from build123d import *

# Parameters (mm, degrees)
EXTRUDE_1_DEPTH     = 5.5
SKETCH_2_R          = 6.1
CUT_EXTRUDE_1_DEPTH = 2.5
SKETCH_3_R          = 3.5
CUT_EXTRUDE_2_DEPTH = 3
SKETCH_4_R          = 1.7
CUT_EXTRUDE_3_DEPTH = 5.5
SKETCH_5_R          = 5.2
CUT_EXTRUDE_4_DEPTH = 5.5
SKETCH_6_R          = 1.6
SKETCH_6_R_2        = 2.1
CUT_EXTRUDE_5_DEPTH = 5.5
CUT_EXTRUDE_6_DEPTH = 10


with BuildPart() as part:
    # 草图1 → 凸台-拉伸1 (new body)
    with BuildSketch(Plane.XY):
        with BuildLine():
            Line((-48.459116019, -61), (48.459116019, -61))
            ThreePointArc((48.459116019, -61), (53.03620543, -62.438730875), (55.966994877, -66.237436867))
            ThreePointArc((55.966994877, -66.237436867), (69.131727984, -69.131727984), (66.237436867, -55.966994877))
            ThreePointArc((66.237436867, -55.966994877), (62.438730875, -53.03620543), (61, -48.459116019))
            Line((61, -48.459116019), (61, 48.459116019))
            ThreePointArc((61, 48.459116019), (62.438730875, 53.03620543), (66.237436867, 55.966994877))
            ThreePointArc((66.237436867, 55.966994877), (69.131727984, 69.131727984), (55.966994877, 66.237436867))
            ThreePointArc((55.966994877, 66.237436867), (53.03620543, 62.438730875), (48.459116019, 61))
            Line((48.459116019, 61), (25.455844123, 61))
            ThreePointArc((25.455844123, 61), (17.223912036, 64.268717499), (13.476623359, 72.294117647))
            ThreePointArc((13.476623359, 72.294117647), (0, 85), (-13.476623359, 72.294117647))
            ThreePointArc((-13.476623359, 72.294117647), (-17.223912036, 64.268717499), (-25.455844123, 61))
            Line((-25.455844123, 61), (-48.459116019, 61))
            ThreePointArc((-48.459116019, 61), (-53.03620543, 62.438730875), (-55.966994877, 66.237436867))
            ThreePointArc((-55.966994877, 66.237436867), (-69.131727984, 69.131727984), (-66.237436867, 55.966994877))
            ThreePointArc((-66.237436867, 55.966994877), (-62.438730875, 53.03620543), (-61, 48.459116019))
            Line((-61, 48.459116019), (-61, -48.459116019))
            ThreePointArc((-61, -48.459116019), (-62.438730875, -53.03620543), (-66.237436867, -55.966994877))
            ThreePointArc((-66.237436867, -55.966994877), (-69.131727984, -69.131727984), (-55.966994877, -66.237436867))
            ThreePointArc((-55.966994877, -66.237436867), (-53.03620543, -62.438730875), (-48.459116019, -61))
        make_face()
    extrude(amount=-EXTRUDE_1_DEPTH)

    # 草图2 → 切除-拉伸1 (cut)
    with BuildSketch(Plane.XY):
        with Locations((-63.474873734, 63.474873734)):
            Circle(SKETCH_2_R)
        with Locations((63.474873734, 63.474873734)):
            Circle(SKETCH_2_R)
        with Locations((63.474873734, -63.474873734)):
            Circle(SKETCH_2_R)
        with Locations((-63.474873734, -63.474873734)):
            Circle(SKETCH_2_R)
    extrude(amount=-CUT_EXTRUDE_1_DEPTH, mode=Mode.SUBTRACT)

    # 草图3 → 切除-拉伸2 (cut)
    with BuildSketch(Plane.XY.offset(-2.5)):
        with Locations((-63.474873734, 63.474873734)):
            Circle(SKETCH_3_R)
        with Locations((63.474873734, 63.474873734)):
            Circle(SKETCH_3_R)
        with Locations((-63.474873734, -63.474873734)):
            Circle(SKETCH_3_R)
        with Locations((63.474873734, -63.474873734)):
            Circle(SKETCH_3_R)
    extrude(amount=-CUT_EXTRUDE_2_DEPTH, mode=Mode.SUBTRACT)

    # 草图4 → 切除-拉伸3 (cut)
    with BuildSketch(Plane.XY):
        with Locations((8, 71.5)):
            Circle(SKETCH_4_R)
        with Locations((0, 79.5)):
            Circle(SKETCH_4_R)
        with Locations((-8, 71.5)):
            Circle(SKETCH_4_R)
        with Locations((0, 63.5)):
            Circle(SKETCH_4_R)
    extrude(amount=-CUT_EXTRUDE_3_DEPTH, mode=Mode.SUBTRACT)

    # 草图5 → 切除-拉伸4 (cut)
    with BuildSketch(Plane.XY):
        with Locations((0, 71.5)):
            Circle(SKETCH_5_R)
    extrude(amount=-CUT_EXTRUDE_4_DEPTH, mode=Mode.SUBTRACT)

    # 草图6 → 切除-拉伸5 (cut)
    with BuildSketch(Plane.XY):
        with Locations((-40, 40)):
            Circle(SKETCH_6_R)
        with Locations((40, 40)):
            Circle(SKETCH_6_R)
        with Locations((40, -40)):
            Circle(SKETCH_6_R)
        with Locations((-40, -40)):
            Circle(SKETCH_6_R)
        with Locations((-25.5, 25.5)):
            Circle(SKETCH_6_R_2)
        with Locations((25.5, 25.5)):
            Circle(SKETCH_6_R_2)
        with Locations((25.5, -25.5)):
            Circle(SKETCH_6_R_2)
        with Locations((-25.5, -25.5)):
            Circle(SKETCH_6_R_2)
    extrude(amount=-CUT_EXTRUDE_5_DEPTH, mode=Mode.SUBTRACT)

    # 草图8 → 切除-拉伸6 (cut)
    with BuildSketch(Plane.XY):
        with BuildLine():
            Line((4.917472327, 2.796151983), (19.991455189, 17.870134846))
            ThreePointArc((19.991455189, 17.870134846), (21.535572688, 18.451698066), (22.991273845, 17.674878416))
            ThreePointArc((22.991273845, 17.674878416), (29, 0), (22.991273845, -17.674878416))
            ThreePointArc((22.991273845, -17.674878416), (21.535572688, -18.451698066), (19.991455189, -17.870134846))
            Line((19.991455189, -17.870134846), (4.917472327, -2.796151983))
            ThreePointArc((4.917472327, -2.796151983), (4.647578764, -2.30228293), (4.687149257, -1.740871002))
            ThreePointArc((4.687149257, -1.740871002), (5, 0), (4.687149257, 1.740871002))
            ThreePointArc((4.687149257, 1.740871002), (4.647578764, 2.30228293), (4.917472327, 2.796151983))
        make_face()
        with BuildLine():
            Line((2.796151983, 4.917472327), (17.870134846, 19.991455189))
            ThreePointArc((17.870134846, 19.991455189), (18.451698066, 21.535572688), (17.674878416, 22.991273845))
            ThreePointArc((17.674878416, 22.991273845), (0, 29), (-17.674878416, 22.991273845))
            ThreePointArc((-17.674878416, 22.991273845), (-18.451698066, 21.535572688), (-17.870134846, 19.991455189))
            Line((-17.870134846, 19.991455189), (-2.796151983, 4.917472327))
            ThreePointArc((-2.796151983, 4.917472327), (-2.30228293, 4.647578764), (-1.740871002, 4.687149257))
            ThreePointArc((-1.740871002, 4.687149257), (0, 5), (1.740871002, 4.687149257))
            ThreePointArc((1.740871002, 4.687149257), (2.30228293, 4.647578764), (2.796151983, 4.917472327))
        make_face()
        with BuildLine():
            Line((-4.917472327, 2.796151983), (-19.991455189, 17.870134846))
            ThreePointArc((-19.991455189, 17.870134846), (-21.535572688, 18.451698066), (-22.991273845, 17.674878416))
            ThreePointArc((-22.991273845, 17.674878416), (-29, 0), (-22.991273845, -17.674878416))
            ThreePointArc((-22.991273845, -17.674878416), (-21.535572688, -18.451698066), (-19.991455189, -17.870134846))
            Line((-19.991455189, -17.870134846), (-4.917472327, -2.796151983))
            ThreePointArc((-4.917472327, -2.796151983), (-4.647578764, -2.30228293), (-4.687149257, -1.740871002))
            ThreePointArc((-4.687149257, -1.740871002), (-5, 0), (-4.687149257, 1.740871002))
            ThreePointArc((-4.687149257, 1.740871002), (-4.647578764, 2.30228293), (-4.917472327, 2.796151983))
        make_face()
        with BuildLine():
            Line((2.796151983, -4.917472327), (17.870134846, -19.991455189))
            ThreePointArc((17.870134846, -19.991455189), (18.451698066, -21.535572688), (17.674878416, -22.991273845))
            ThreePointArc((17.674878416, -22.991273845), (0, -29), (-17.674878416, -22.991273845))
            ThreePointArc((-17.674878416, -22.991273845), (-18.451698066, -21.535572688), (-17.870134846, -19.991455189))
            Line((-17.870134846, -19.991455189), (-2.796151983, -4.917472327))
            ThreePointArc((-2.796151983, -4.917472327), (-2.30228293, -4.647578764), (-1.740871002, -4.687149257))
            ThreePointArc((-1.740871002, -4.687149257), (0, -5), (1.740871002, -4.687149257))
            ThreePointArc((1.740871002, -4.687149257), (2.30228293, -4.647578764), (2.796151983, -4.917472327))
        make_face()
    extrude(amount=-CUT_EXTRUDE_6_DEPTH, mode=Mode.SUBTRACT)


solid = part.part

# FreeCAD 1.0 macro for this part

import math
import FreeCAD as App
import Part
import Sketcher
from FreeCAD import Vector
Q = App.Units.Quantity

doc = App.newDocument("Part")
body = doc.addObject("PartDesign::Body", "Body")

# Sketch on XY plane
sketch1 = body.newObject("Sketcher::SketchObject", "Sketch")
sketch1.AttachmentSupport = (doc.getObject("XY_Plane"), [""])
sketch1.MapMode = "FlatFace"
sketch1.addGeometry(Part.LineSegment(Vector(-48, -61, 0), Vector(48, -61, 0)), False)
sketch1.addGeometry(Part.ArcOfCircle(Part.Circle(Vector(48, -69, 0), Vector(0, 0, 1), 8), math.radians(20), math.radians(90)), False)
sketch1.addGeometry(Part.ArcOfCircle(Part.Circle(Vector(63, -63, 0), Vector(0, 0, 1), 8), math.radians(-160), math.radians(70)), False)
sketch1.addGeometry(Part.ArcOfCircle(Part.Circle(Vector(69, -48, 0), Vector(0, 0, 1), 8), math.radians(180), math.radians(250)), False)
sketch1.addGeometry(Part.LineSegment(Vector(61, -48, 0), Vector(61, 48, 0)), False)
sketch1.addGeometry(Part.ArcOfCircle(Part.Circle(Vector(69, 48, 0), Vector(0, 0, 1), 8), math.radians(110), math.radians(180)), False)
sketch1.addGeometry(Part.ArcOfCircle(Part.Circle(Vector(63, 63, 0), Vector(0, 0, 1), 8), math.radians(-70), math.radians(160)), False)
sketch1.addGeometry(Part.ArcOfCircle(Part.Circle(Vector(48, 69, 0), Vector(0, 0, 1), 8), math.radians(-90), math.radians(-20)), False)
sketch1.addGeometry(Part.LineSegment(Vector(48, 61, 0), Vector(25, 61, 0)), False)
sketch1.addGeometry(Part.ArcOfCircle(Part.Circle(Vector(25, 73, 0), Vector(0, 0, 1), 12), math.radians(-177), math.radians(-90)), False)
sketch1.addGeometry(Part.ArcOfCircle(Part.Circle(Vector(0, 72, 0), Vector(0, 0, 1), 14), math.radians(3), math.radians(177)), False)
sketch1.addGeometry(Part.ArcOfCircle(Part.Circle(Vector(-25, 73, 0), Vector(0, 0, 1), 12), math.radians(-90), math.radians(-3)), False)
sketch1.addGeometry(Part.LineSegment(Vector(-25, 61, 0), Vector(-48, 61, 0)), False)
sketch1.addGeometry(Part.ArcOfCircle(Part.Circle(Vector(-48, 69, 0), Vector(0, 0, 1), 8), math.radians(-160), math.radians(-90)), False)
sketch1.addGeometry(Part.ArcOfCircle(Part.Circle(Vector(-63, 63, 0), Vector(0, 0, 1), 8), math.radians(20), math.radians(250)), False)
sketch1.addGeometry(Part.ArcOfCircle(Part.Circle(Vector(-69, 48, 0), Vector(0, 0, 1), 8), math.radians(0), math.radians(70)), False)
sketch1.addGeometry(Part.LineSegment(Vector(-61, 48, 0), Vector(-61, -48, 0)), False)
sketch1.addGeometry(Part.ArcOfCircle(Part.Circle(Vector(-69, -48, 0), Vector(0, 0, 1), 8), math.radians(-70), math.radians(0)), False)
sketch1.addGeometry(Part.ArcOfCircle(Part.Circle(Vector(-63, -63, 0), Vector(0, 0, 1), 8), math.radians(110), math.radians(340)), False)
sketch1.addGeometry(Part.ArcOfCircle(Part.Circle(Vector(-48, -69, 0), Vector(0, 0, 1), 8), math.radians(90), math.radians(160)), False)
sketch1.addConstraint(Sketcher.Constraint("Tangent", 0, 2, 1, 2))
sketch1.addConstraint(Sketcher.Constraint("Tangent", 1, 1, 2, 1))
sketch1.addConstraint(Sketcher.Constraint("Tangent", 2, 2, 3, 2))
sketch1.addConstraint(Sketcher.Constraint("Tangent", 3, 1, 4, 1))
sketch1.addConstraint(Sketcher.Constraint("Tangent", 4, 2, 5, 2))
sketch1.addConstraint(Sketcher.Constraint("Tangent", 5, 1, 6, 1))
sketch1.addConstraint(Sketcher.Constraint("Tangent", 6, 2, 7, 2))
sketch1.addConstraint(Sketcher.Constraint("Tangent", 7, 1, 8, 1))
sketch1.addConstraint(Sketcher.Constraint("Tangent", 8, 2, 9, 2))
sketch1.addConstraint(Sketcher.Constraint("Tangent", 9, 1, 10, 1))
sketch1.addConstraint(Sketcher.Constraint("Tangent", 10, 2, 11, 2))
sketch1.addConstraint(Sketcher.Constraint("Tangent", 11, 1, 12, 1))
sketch1.addConstraint(Sketcher.Constraint("Tangent", 12, 2, 13, 2))
sketch1.addConstraint(Sketcher.Constraint("Tangent", 13, 1, 14, 1))
sketch1.addConstraint(Sketcher.Constraint("Tangent", 14, 2, 15, 2))
sketch1.addConstraint(Sketcher.Constraint("Tangent", 15, 1, 16, 1))
sketch1.addConstraint(Sketcher.Constraint("Tangent", 16, 2, 17, 2))
sketch1.addConstraint(Sketcher.Constraint("Tangent", 17, 1, 18, 1))
sketch1.addConstraint(Sketcher.Constraint("Tangent", 18, 2, 19, 2))
sketch1.addConstraint(Sketcher.Constraint("Tangent", 19, 1, 0, 1))
sketch1.addConstraint(Sketcher.Constraint("Horizontal", 0))
sketch1.addConstraint(Sketcher.Constraint("Vertical", 4))
sketch1.addConstraint(Sketcher.Constraint("Horizontal", 8))
sketch1.addConstraint(Sketcher.Constraint("Horizontal", 12))
sketch1.addConstraint(Sketcher.Constraint("Vertical", 16))
sketch1.addConstraint(Sketcher.Constraint("Equal", 1, 2))
sketch1.addConstraint(Sketcher.Constraint("Equal", 2, 3))
sketch1.addConstraint(Sketcher.Constraint("Equal", 3, 5))
sketch1.addConstraint(Sketcher.Constraint("Equal", 5, 6))
sketch1.addConstraint(Sketcher.Constraint("Equal", 6, 7))
sketch1.addConstraint(Sketcher.Constraint("Equal", 9, 11))
sketch1.addConstraint(Sketcher.Constraint("Equal", 7, 13))
sketch1.addConstraint(Sketcher.Constraint("Equal", 13, 14))
sketch1.addConstraint(Sketcher.Constraint("Equal", 14, 15))
sketch1.addConstraint(Sketcher.Constraint("Equal", 15, 17))
sketch1.addConstraint(Sketcher.Constraint("Equal", 17, 18))
sketch1.addConstraint(Sketcher.Constraint("Equal", 18, 19))
sketch1.addConstraint(Sketcher.Constraint("Symmetric", 1, 3, 13, 3, -1, 1))
sketch1.addConstraint(Sketcher.Constraint("Symmetric", 3, 3, 15, 3, -1, 1))
sketch1.addConstraint(Sketcher.Constraint("Symmetric", 6, 3, 18, 3, -1, 1))
sketch1.addConstraint(Sketcher.Constraint("Symmetric", 9, 3, 11, 3, -2))
sketch1.addConstraint(Sketcher.Constraint("Symmetric", 6, 3, 14, 3, -2))
sketch1.addConstraint(Sketcher.Constraint("Equal", 0, 4))
sketch1.addConstraint(Sketcher.Constraint("Radius", 1, Q("8 mm")))
sketch1.addConstraint(Sketcher.Constraint("Radius", 9, Q("12 mm")))
sketch1.addConstraint(Sketcher.Constraint("Radius", 10, Q("13.5 mm")))
sketch1.addConstraint(Sketcher.Constraint("DistanceY", 1, 3, -1, 1, Q("69 mm")))
sketch1.addConstraint(Sketcher.Constraint("DistanceX", -1, 1, 3, 3, Q("69 mm")))
sketch1.addConstraint(Sketcher.Constraint("DistanceY", -1, 1, 10, 3, Q("71.5 mm")))
sketch1.addConstraint(Sketcher.Constraint("DistanceX", 8, 2, 8, 1, Q("23.003272 mm")))
pad1 = body.newObject("PartDesign::Pad", "Pad")
pad1.Profile = sketch1
pad1.Length = 5.5
pad1.Reversed = True

# Sketch on XY plane
sketch2 = body.newObject("Sketcher::SketchObject", "Sketch001")
sketch2.AttachmentSupport = (doc.getObject("XY_Plane"), [""])
sketch2.MapMode = "FlatFace"
sketch2.addGeometry(Part.Circle(Vector(-63, 63, 0), Vector(0, 0, 1), 6), False)
sketch2.addGeometry(Part.Circle(Vector(63, 63, 0), Vector(0, 0, 1), 6), False)
sketch2.addGeometry(Part.Circle(Vector(63, -63, 0), Vector(0, 0, 1), 6), False)
sketch2.addGeometry(Part.Circle(Vector(-63, -63, 0), Vector(0, 0, 1), 6), False)
sketch2.addConstraint(Sketcher.Constraint("Equal", 0, 1))
sketch2.addConstraint(Sketcher.Constraint("Equal", 1, 2))
sketch2.addConstraint(Sketcher.Constraint("Equal", 2, 3))
sketch2.addConstraint(Sketcher.Constraint("Symmetric", 0, 3, 2, 3, -1, 1))
sketch2.addConstraint(Sketcher.Constraint("Symmetric", 1, 3, 3, 3, -1, 1))
sketch2.addConstraint(Sketcher.Constraint("Symmetric", 0, 3, 1, 3, -2))
sketch2.addConstraint(Sketcher.Constraint("Diameter", 0, Q("12.2 mm")))
sketch2.addConstraint(Sketcher.Constraint("DistanceX", 0, 3, -1, 1, Q("63.474874 mm")))
sketch2.addConstraint(Sketcher.Constraint("DistanceY", -1, 1, 0, 3, Q("63.474874 mm")))
pocket1 = body.newObject("PartDesign::Pocket", "Pocket")
pocket1.Profile = sketch2
pocket1.Length = 2.5

# Sketch on XY plane
sketch3 = body.newObject("Sketcher::SketchObject", "Sketch002")
sketch3.AttachmentSupport = (doc.getObject("XY_Plane"), [""])
sketch3.MapMode = "FlatFace"
sketch3.AttachmentOffset = App.Placement(Vector(0, 0, -2.5), App.Rotation())
sketch3.addGeometry(Part.Circle(Vector(-63.5, 63.5, 0), Vector(0, 0, 1), 3.5), False)
sketch3.addGeometry(Part.Circle(Vector(63.5, 63.5, 0), Vector(0, 0, 1), 3.5), False)
sketch3.addGeometry(Part.Circle(Vector(-63.5, -63.5, 0), Vector(0, 0, 1), 3.5), False)
sketch3.addGeometry(Part.Circle(Vector(63.5, -63.5, 0), Vector(0, 0, 1), 3.5), False)
sketch3.addConstraint(Sketcher.Constraint("Equal", 0, 1))
sketch3.addConstraint(Sketcher.Constraint("Equal", 1, 2))
sketch3.addConstraint(Sketcher.Constraint("Equal", 2, 3))
sketch3.addConstraint(Sketcher.Constraint("Symmetric", 1, 3, 2, 3, -1, 1))
sketch3.addConstraint(Sketcher.Constraint("Symmetric", 0, 3, 3, 3, -1, 1))
sketch3.addConstraint(Sketcher.Constraint("Symmetric", 0, 3, 1, 3, -2))
sketch3.addConstraint(Sketcher.Constraint("Diameter", 0, Q("7 mm")))
sketch3.addConstraint(Sketcher.Constraint("DistanceX", 0, 3, -1, 1, Q("63.474874 mm")))
sketch3.addConstraint(Sketcher.Constraint("DistanceY", -1, 1, 0, 3, Q("63.474874 mm")))
pocket2 = body.newObject("PartDesign::Pocket", "Pocket001")
pocket2.Profile = sketch3
pocket2.Length = 3

# Sketch on XY plane
sketch4 = body.newObject("Sketcher::SketchObject", "Sketch003")
sketch4.AttachmentSupport = (doc.getObject("XY_Plane"), [""])
sketch4.MapMode = "FlatFace"
sketch4.addGeometry(Part.Circle(Vector(8, 71.5, 0), Vector(0, 0, 1), 1.7), False)
sketch4.addGeometry(Part.Circle(Vector(0, 79.5, 0), Vector(0, 0, 1), 1.7), False)
sketch4.addGeometry(Part.Circle(Vector(-8, 71.5, 0), Vector(0, 0, 1), 1.7), False)
sketch4.addGeometry(Part.Circle(Vector(0, 63.5, 0), Vector(0, 0, 1), 1.7), False)
sketch4.addConstraint(Sketcher.Constraint("Equal", 0, 1))
sketch4.addConstraint(Sketcher.Constraint("Equal", 1, 2))
sketch4.addConstraint(Sketcher.Constraint("Equal", 2, 3))
sketch4.addConstraint(Sketcher.Constraint("Symmetric", 0, 3, 2, 3, -2))
sketch4.addConstraint(Sketcher.Constraint("PointOnObject", 1, 3, -2))
sketch4.addConstraint(Sketcher.Constraint("PointOnObject", 3, 3, -2))
sketch4.addConstraint(Sketcher.Constraint("Diameter", 0, Q("3.4 mm")))
sketch4.addConstraint(Sketcher.Constraint("DistanceX", -1, 1, 0, 3, Q("8 mm")))
sketch4.addConstraint(Sketcher.Constraint("DistanceY", 0, 3, 1, 3, Q("8 mm")))
sketch4.addConstraint(Sketcher.Constraint("DistanceY", 3, 3, 0, 3, Q("8 mm")))
sketch4.addConstraint(Sketcher.Constraint("DistanceY", -1, 1, 0, 3, Q("71.5 mm")))
pocket3 = body.newObject("PartDesign::Pocket", "Pocket002")
pocket3.Profile = sketch4
pocket3.Length = 5.5

# Sketch on XY plane
sketch5 = body.newObject("Sketcher::SketchObject", "Sketch004")
sketch5.AttachmentSupport = (doc.getObject("XY_Plane"), [""])
sketch5.MapMode = "FlatFace"
sketch5.addGeometry(Part.Circle(Vector(0, 72, 0), Vector(0, 0, 1), 5), False)
sketch5.addConstraint(Sketcher.Constraint("PointOnObject", 0, 3, -2))
sketch5.addConstraint(Sketcher.Constraint("Diameter", 0, Q("10.4 mm")))
sketch5.addConstraint(Sketcher.Constraint("DistanceY", -1, 1, 0, 3, Q("71.5 mm")))
pocket4 = body.newObject("PartDesign::Pocket", "Pocket003")
pocket4.Profile = sketch5
pocket4.Length = 5.5

# Sketch on XY plane
sketch6 = body.newObject("Sketcher::SketchObject", "Sketch005")
sketch6.AttachmentSupport = (doc.getObject("XY_Plane"), [""])
sketch6.MapMode = "FlatFace"
sketch6.addGeometry(Part.Circle(Vector(-40, 40, 0), Vector(0, 0, 1), 1.6), False)
sketch6.addGeometry(Part.Circle(Vector(40, 40, 0), Vector(0, 0, 1), 1.6), False)
sketch6.addGeometry(Part.Circle(Vector(40, -40, 0), Vector(0, 0, 1), 1.6), False)
sketch6.addGeometry(Part.Circle(Vector(-40, -40, 0), Vector(0, 0, 1), 1.6), False)
sketch6.addGeometry(Part.Circle(Vector(-25.5, 25.5, 0), Vector(0, 0, 1), 2.1), False)
sketch6.addGeometry(Part.Circle(Vector(25.5, 25.5, 0), Vector(0, 0, 1), 2.1), False)
sketch6.addGeometry(Part.Circle(Vector(25.5, -25.5, 0), Vector(0, 0, 1), 2.1), False)
sketch6.addGeometry(Part.Circle(Vector(-25.5, -25.5, 0), Vector(0, 0, 1), 2.1), False)
sketch6.addConstraint(Sketcher.Constraint("Equal", 0, 1))
sketch6.addConstraint(Sketcher.Constraint("Equal", 1, 2))
sketch6.addConstraint(Sketcher.Constraint("Equal", 2, 3))
sketch6.addConstraint(Sketcher.Constraint("Equal", 4, 5))
sketch6.addConstraint(Sketcher.Constraint("Equal", 5, 6))
sketch6.addConstraint(Sketcher.Constraint("Equal", 6, 7))
sketch6.addConstraint(Sketcher.Constraint("Symmetric", 0, 3, 2, 3, -1, 1))
sketch6.addConstraint(Sketcher.Constraint("Symmetric", 1, 3, 3, 3, -1, 1))
sketch6.addConstraint(Sketcher.Constraint("Symmetric", 4, 3, 6, 3, -1, 1))
sketch6.addConstraint(Sketcher.Constraint("Symmetric", 5, 3, 7, 3, -1, 1))
sketch6.addConstraint(Sketcher.Constraint("Symmetric", 0, 3, 1, 3, -2))
sketch6.addConstraint(Sketcher.Constraint("Symmetric", 4, 3, 5, 3, -2))
sketch6.addConstraint(Sketcher.Constraint("Diameter", 0, Q("3.2 mm")))
sketch6.addConstraint(Sketcher.Constraint("Diameter", 4, Q("4.2 mm")))
sketch6.addConstraint(Sketcher.Constraint("DistanceX", 0, 3, -1, 1, Q("40 mm")))
sketch6.addConstraint(Sketcher.Constraint("DistanceY", -1, 1, 0, 3, Q("40 mm")))
sketch6.addConstraint(Sketcher.Constraint("DistanceX", 4, 3, 5, 3, Q("51 mm")))
sketch6.addConstraint(Sketcher.Constraint("DistanceY", 6, 3, 5, 3, Q("51 mm")))
pocket5 = body.newObject("PartDesign::Pocket", "Pocket004")
pocket5.Profile = sketch6
pocket5.Length = 5.5

# Sketch on XY plane
sketch7 = body.newObject("Sketcher::SketchObject", "Sketch006")
sketch7.AttachmentSupport = (doc.getObject("XY_Plane"), [""])
sketch7.MapMode = "FlatFace"
sketch7.addGeometry(Part.LineSegment(Vector(20, 17.9, 0), Vector(4.9, 2.8, 0)), False)
sketch7.addGeometry(Part.ArcOfCircle(Part.Circle(Vector(5.6, 2.1, 0), Vector(0, 0, 1), 1), math.radians(135), math.radians(200)), False)
sketch7.addGeometry(Part.ArcOfCircle(Part.Circle(Vector(0, 0, 0), Vector(0, 0, 1), 5), math.radians(-20), math.radians(20)), False)
sketch7.addGeometry(Part.ArcOfCircle(Part.Circle(Vector(5.6, -2.1, 0), Vector(0, 0, 1), 1), math.radians(160), math.radians(225)), False)
sketch7.addGeometry(Part.LineSegment(Vector(4.9, -2.8, 0), Vector(20, -17.9, 0)), False)
sketch7.addGeometry(Part.ArcOfCircle(Part.Circle(Vector(21.4, -16.5, 0), Vector(0, 0, 1), 2), math.radians(-135), math.radians(-38)), False)
sketch7.addGeometry(Part.ArcOfCircle(Part.Circle(Vector(0, 0, 0), Vector(0, 0, 1), 29), math.radians(-38), math.radians(38)), False)
sketch7.addGeometry(Part.ArcOfCircle(Part.Circle(Vector(21.4, 16.5, 0), Vector(0, 0, 1), 2), math.radians(38), math.radians(135)), False)
sketch7.addGeometry(Part.LineSegment(Vector(2.8, 4.9, 0), Vector(17.9, 20, 0)), False)
sketch7.addGeometry(Part.ArcOfCircle(Part.Circle(Vector(16.5, 21.4, 0), Vector(0, 0, 1), 2), math.radians(-45), math.radians(52)), False)
sketch7.addGeometry(Part.ArcOfCircle(Part.Circle(Vector(0, 0, 0), Vector(0, 0, 1), 29), math.radians(52), math.radians(128)), False)
sketch7.addGeometry(Part.ArcOfCircle(Part.Circle(Vector(-16.5, 21.4, 0), Vector(0, 0, 1), 2), math.radians(128), math.radians(225)), False)
sketch7.addGeometry(Part.LineSegment(Vector(-17.9, 20, 0), Vector(-2.8, 4.9, 0)), False)
sketch7.addGeometry(Part.ArcOfCircle(Part.Circle(Vector(-2.1, 5.6, 0), Vector(0, 0, 1), 1), math.radians(-135), math.radians(-70)), False)
sketch7.addGeometry(Part.ArcOfCircle(Part.Circle(Vector(0, 0, 0), Vector(0, 0, 1), 5), math.radians(70), math.radians(110)), False)
sketch7.addGeometry(Part.ArcOfCircle(Part.Circle(Vector(2.1, 5.6, 0), Vector(0, 0, 1), 1), math.radians(-110), math.radians(-45)), False)
sketch7.addGeometry(Part.LineSegment(Vector(-4.9, 2.8, 0), Vector(-20, 17.9, 0)), False)
sketch7.addGeometry(Part.ArcOfCircle(Part.Circle(Vector(-21.4, 16.5, 0), Vector(0, 0, 1), 2), math.radians(45), math.radians(142)), False)
sketch7.addGeometry(Part.ArcOfCircle(Part.Circle(Vector(0, 0, 0), Vector(0, 0, 1), 29), math.radians(142), math.radians(218)), False)
sketch7.addGeometry(Part.ArcOfCircle(Part.Circle(Vector(-21.4, -16.5, 0), Vector(0, 0, 1), 2), math.radians(-142), math.radians(-45)), False)
sketch7.addGeometry(Part.LineSegment(Vector(-20, -17.9, 0), Vector(-4.9, -2.8, 0)), False)
sketch7.addGeometry(Part.ArcOfCircle(Part.Circle(Vector(-5.6, -2.1, 0), Vector(0, 0, 1), 1), math.radians(-45), math.radians(20)), False)
sketch7.addGeometry(Part.ArcOfCircle(Part.Circle(Vector(0, 0, 0), Vector(0, 0, 1), 5), math.radians(160), math.radians(200)), False)
sketch7.addGeometry(Part.ArcOfCircle(Part.Circle(Vector(-5.6, 2.1, 0), Vector(0, 0, 1), 1), math.radians(-20), math.radians(45)), False)
sketch7.addGeometry(Part.LineSegment(Vector(17.9, -20, 0), Vector(2.8, -4.9, 0)), False)
sketch7.addGeometry(Part.ArcOfCircle(Part.Circle(Vector(2.1, -5.6, 0), Vector(0, 0, 1), 1), math.radians(45), math.radians(110)), False)
sketch7.addGeometry(Part.ArcOfCircle(Part.Circle(Vector(0, 0, 0), Vector(0, 0, 1), 5), math.radians(-110), math.radians(-70)), False)
sketch7.addGeometry(Part.ArcOfCircle(Part.Circle(Vector(-2.1, -5.6, 0), Vector(0, 0, 1), 1), math.radians(70), math.radians(135)), False)
sketch7.addGeometry(Part.LineSegment(Vector(-2.8, -4.9, 0), Vector(-17.9, -20, 0)), False)
sketch7.addGeometry(Part.ArcOfCircle(Part.Circle(Vector(-16.5, -21.4, 0), Vector(0, 0, 1), 2), math.radians(135), math.radians(232)), False)
sketch7.addGeometry(Part.ArcOfCircle(Part.Circle(Vector(0, 0, 0), Vector(0, 0, 1), 29), math.radians(-128), math.radians(-52)), False)
sketch7.addGeometry(Part.ArcOfCircle(Part.Circle(Vector(16.5, -21.4, 0), Vector(0, 0, 1), 2), math.radians(-52), math.radians(45)), False)
sketch7.addConstraint(Sketcher.Constraint("Tangent", 0, 2, 1, 1))
sketch7.addConstraint(Sketcher.Constraint("Tangent", 1, 2, 2, 2))
sketch7.addConstraint(Sketcher.Constraint("Tangent", 2, 1, 3, 1))
sketch7.addConstraint(Sketcher.Constraint("Tangent", 3, 2, 4, 1))
sketch7.addConstraint(Sketcher.Constraint("Tangent", 4, 2, 5, 1))
sketch7.addConstraint(Sketcher.Constraint("Tangent", 5, 2, 6, 1))
sketch7.addConstraint(Sketcher.Constraint("Tangent", 6, 2, 7, 1))
sketch7.addConstraint(Sketcher.Constraint("Tangent", 7, 2, 0, 1))
sketch7.addConstraint(Sketcher.Constraint("Tangent", 8, 2, 9, 1))
sketch7.addConstraint(Sketcher.Constraint("Tangent", 9, 2, 10, 1))
sketch7.addConstraint(Sketcher.Constraint("Tangent", 10, 2, 11, 1))
sketch7.addConstraint(Sketcher.Constraint("Tangent", 11, 2, 12, 1))
sketch7.addConstraint(Sketcher.Constraint("Tangent", 12, 2, 13, 1))
sketch7.addConstraint(Sketcher.Constraint("Tangent", 13, 2, 14, 2))
sketch7.addConstraint(Sketcher.Constraint("Tangent", 14, 1, 15, 1))
sketch7.addConstraint(Sketcher.Constraint("Tangent", 15, 2, 8, 1))
sketch7.addConstraint(Sketcher.Constraint("Tangent", 16, 2, 17, 1))
sketch7.addConstraint(Sketcher.Constraint("Tangent", 17, 2, 18, 1))
sketch7.addConstraint(Sketcher.Constraint("Tangent", 18, 2, 19, 1))
sketch7.addConstraint(Sketcher.Constraint("Tangent", 19, 2, 20, 1))
sketch7.addConstraint(Sketcher.Constraint("Tangent", 20, 2, 21, 1))
sketch7.addConstraint(Sketcher.Constraint("Tangent", 21, 2, 22, 2))
sketch7.addConstraint(Sketcher.Constraint("Tangent", 22, 1, 23, 1))
sketch7.addConstraint(Sketcher.Constraint("Tangent", 23, 2, 16, 1))
sketch7.addConstraint(Sketcher.Constraint("Tangent", 24, 2, 25, 1))
sketch7.addConstraint(Sketcher.Constraint("Tangent", 25, 2, 26, 2))
sketch7.addConstraint(Sketcher.Constraint("Tangent", 26, 1, 27, 1))
sketch7.addConstraint(Sketcher.Constraint("Tangent", 27, 2, 28, 1))
sketch7.addConstraint(Sketcher.Constraint("Tangent", 28, 2, 29, 1))
sketch7.addConstraint(Sketcher.Constraint("Tangent", 29, 2, 30, 1))
sketch7.addConstraint(Sketcher.Constraint("Tangent", 30, 2, 31, 1))
sketch7.addConstraint(Sketcher.Constraint("Tangent", 31, 2, 24, 1))
sketch7.addConstraint(Sketcher.Constraint("Coincident", 2, 3, -1, 1))
sketch7.addConstraint(Sketcher.Constraint("Coincident", 6, 3, -1, 1))
sketch7.addConstraint(Sketcher.Constraint("Coincident", 10, 3, -1, 1))
sketch7.addConstraint(Sketcher.Constraint("Coincident", 14, 3, -1, 1))
sketch7.addConstraint(Sketcher.Constraint("Coincident", 18, 3, -1, 1))
sketch7.addConstraint(Sketcher.Constraint("Coincident", 22, 3, -1, 1))
sketch7.addConstraint(Sketcher.Constraint("Coincident", 26, 3, -1, 1))
sketch7.addConstraint(Sketcher.Constraint("Coincident", 30, 3, -1, 1))
sketch7.addConstraint(Sketcher.Constraint("Equal", 1, 3))
sketch7.addConstraint(Sketcher.Constraint("Equal", 5, 7))
sketch7.addConstraint(Sketcher.Constraint("Equal", 7, 9))
sketch7.addConstraint(Sketcher.Constraint("Equal", 6, 10))
sketch7.addConstraint(Sketcher.Constraint("Equal", 9, 11))
sketch7.addConstraint(Sketcher.Constraint("Equal", 3, 13))
sketch7.addConstraint(Sketcher.Constraint("Equal", 2, 14))
sketch7.addConstraint(Sketcher.Constraint("Equal", 13, 15))
sketch7.addConstraint(Sketcher.Constraint("Equal", 11, 17))
sketch7.addConstraint(Sketcher.Constraint("Equal", 10, 18))
sketch7.addConstraint(Sketcher.Constraint("Equal", 17, 19))
sketch7.addConstraint(Sketcher.Constraint("Equal", 15, 21))
sketch7.addConstraint(Sketcher.Constraint("Equal", 14, 22))
sketch7.addConstraint(Sketcher.Constraint("Equal", 21, 23))
sketch7.addConstraint(Sketcher.Constraint("Equal", 23, 25))
sketch7.addConstraint(Sketcher.Constraint("Equal", 22, 26))
sketch7.addConstraint(Sketcher.Constraint("Equal", 25, 27))
sketch7.addConstraint(Sketcher.Constraint("Equal", 19, 29))
sketch7.addConstraint(Sketcher.Constraint("Equal", 18, 30))
sketch7.addConstraint(Sketcher.Constraint("Equal", 29, 31))
sketch7.addConstraint(Sketcher.Constraint("Symmetric", 4, 2, 16, 2, -1, 1))
sketch7.addConstraint(Sketcher.Constraint("Symmetric", 7, 2, 19, 2, -1, 1))
sketch7.addConstraint(Sketcher.Constraint("Symmetric", 12, 2, 24, 2, -1, 1))
sketch7.addConstraint(Sketcher.Constraint("Symmetric", 15, 2, 27, 2, -1, 1))
sketch7.addConstraint(Sketcher.Constraint("Symmetric", 8, 2, 11, 2, -2))
sketch7.addConstraint(Sketcher.Constraint("Symmetric", 7, 2, 16, 2, -2))
sketch7.addConstraint(Sketcher.Constraint("Perpendicular", 0, 4))
sketch7.addConstraint(Sketcher.Constraint("Perpendicular", 4, 8))
sketch7.addConstraint(Sketcher.Constraint("Equal", 4, 8))
sketch7.addConstraint(Sketcher.Constraint("Radius", 1, Q("1 mm")))
sketch7.addConstraint(Sketcher.Constraint("Radius", 2, Q("5 mm")))
sketch7.addConstraint(Sketcher.Constraint("Radius", 5, Q("2 mm")))
sketch7.addConstraint(Sketcher.Constraint("Radius", 6, Q("29 mm")))
sketch7.addConstraint(Sketcher.Constraint("DistanceX", 11, 3, 1, 3, Q("22.0805 mm")))
pocket6 = body.newObject("PartDesign::Pocket", "Pocket005")
pocket6.Profile = sketch7
pocket6.Length = 10

doc.recompute()
